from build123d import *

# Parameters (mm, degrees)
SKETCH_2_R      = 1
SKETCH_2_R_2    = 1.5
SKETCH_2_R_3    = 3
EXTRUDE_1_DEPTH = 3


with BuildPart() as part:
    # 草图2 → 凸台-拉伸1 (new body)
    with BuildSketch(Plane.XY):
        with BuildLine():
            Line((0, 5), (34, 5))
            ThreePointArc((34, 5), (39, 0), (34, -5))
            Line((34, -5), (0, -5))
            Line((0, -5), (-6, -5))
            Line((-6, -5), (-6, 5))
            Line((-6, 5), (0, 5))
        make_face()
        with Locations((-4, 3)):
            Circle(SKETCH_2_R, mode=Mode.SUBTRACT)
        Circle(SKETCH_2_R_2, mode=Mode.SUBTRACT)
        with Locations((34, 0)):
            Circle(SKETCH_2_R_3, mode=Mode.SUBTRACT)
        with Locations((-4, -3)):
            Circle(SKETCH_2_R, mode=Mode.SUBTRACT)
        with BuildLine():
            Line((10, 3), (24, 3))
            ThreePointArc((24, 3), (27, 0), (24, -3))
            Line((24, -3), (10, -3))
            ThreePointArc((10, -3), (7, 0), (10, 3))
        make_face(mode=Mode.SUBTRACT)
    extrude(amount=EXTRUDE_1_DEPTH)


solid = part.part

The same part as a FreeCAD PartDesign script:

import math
import FreeCAD as App
import Part
import Sketcher

V = App.Vector
Q = App.Units.Quantity

doc = App.newDocument("Part")
body = doc.addObject("PartDesign::Body", "Body")

# Sketch on XY plane
sketch1 = doc.addObject("Sketcher::SketchObject", "Sketch")
body.addObject(sketch1)
sketch1.AttachmentSupport = (doc.XY_Plane, [""])
sketch1.MapMode = "FlatFace"
sketch1.addGeometry(Part.ArcOfCircle(Part.Circle(V(34, 0, 0), V(0, 0, 1), 5), math.radians(-90), math.radians(90)), False)
sketch1.addGeometry(Part.LineSegment(V(34, 5, 0), V(-6, 5, 0)), False)
sketch1.addGeometry(Part.LineSegment(V(-6, 5, 0), V(-6, -5, 0)), False)
sketch1.addGeometry(Part.LineSegment(V(-6, -5, 0), V(34, -5, 0)), False)
sketch1.addGeometry(Part.Circle(V(-4, -3, 0), V(0, 0, 1), 1), False)
sketch1.addGeometry(Part.Circle(V(34, 0, 0), V(0, 0, 1), 3), False)
sketch1.addGeometry(Part.LineSegment(V(10, 3, 0), V(24, 3, 0)), False)
sketch1.addGeometry(Part.ArcOfCircle(Part.Circle(V(24, 0, 0), V(0, 0, 1), 3), math.radians(-90), math.radians(90)), False)
sketch1.addGeometry(Part.LineSegment(V(24, -3, 0), V(10, -3, 0)), False)
sketch1.addGeometry(Part.ArcOfCircle(Part.Circle(V(10, 0, 0), V(0, 0, 1), 3), math.radians(90), math.radians(270)), False)
sketch1.addGeometry(Part.Circle(V(0, 0, 0), V(0, 0, 1), 1.5), False)
sketch1.addGeometry(Part.Circle(V(-4, 3, 0), V(0, 0, 1), 1), False)
sketch1.addConstraint(Sketcher.Constraint("Tangent", 0, 2, 1, 1))
sketch1.addConstraint(Sketcher.Constraint("Coincident", 1, 2, 2, 1))
sketch1.addConstraint(Sketcher.Constraint("Coincident", 2, 2, 3, 1))
sketch1.addConstraint(Sketcher.Constraint("Tangent", 3, 2, 0, 1))
sketch1.addConstraint(Sketcher.Constraint("Tangent", 6, 2, 7, 2))
sketch1.addConstraint(Sketcher.Constraint("Tangent", 7, 1, 8, 1))
sketch1.addConstraint(Sketcher.Constraint("Tangent", 8, 2, 9, 2))
sketch1.addConstraint(Sketcher.Constraint("Tangent", 9, 1, 6, 1))
sketch1.addConstraint(Sketcher.Constraint("Horizontal", 1))
sketch1.addConstraint(Sketcher.Constraint("Vertical", 2))
sketch1.addConstraint(Sketcher.Constraint("Horizontal", 3))
sketch1.addConstraint(Sketcher.Constraint("Horizontal", 6))
sketch1.addConstraint(Sketcher.Constraint("Horizontal", 8))
sketch1.addConstraint(Sketcher.Constraint("Coincident", 10, 3, -1, 1))
sketch1.addConstraint(Sketcher.Constraint("Coincident", 5, 3, 0, 3))
sketch1.addConstraint(Sketcher.Constraint("Equal", 5, 7))
sketch1.addConstraint(Sketcher.Constraint("Equal", 4, 11))
sketch1.addConstraint(Sketcher.Constraint("Symmetric", 4, 3, 11, 3, -1))
sketch1.addConstraint(Sketcher.Constraint("PointOnObject", 0, 3, -1))
sketch1.addConstraint(Sketcher.Constraint("PointOnObject", 7, 3, -1))
sketch1.addConstraint(Sketcher.Constraint("Horizontal", 11, 3, 6, 2))
sketch1.addConstraint(Sketcher.Constraint("Diameter", 4, Q("2 mm")))
sketch1.addConstraint(Sketcher.Constraint("Diameter", 5, Q("6 mm")))
sketch1.addConstraint(Sketcher.Constraint("Diameter", 10, Q("3 mm")))
sketch1.addConstraint(Sketcher.Constraint("Radius", 0, Q("5 mm")))
sketch1.addConstraint(Sketcher.Constraint("DistanceX", 1, 2, 1, 1, Q("40 mm")))
sketch1.addConstraint(Sketcher.Constraint("DistanceX", 6, 1, 6, 2, Q("14 mm")))
sketch1.addConstraint(Sketcher.Constraint("DistanceX", -1, 1, 0, 3, Q("34 mm")))
sketch1.addConstraint(Sketcher.Constraint("DistanceX", 4, 3, -1, 1, Q("4 mm")))
sketch1.addConstraint(Sketcher.Constraint("DistanceX", -1, 1, 7, 3, Q("24 mm")))
pad1 = doc.addObject("PartDesign::Pad", "Pad")
body.addObject(pad1)
pad1.Profile = sketch1
pad1.Length = 3

doc.recompute()
